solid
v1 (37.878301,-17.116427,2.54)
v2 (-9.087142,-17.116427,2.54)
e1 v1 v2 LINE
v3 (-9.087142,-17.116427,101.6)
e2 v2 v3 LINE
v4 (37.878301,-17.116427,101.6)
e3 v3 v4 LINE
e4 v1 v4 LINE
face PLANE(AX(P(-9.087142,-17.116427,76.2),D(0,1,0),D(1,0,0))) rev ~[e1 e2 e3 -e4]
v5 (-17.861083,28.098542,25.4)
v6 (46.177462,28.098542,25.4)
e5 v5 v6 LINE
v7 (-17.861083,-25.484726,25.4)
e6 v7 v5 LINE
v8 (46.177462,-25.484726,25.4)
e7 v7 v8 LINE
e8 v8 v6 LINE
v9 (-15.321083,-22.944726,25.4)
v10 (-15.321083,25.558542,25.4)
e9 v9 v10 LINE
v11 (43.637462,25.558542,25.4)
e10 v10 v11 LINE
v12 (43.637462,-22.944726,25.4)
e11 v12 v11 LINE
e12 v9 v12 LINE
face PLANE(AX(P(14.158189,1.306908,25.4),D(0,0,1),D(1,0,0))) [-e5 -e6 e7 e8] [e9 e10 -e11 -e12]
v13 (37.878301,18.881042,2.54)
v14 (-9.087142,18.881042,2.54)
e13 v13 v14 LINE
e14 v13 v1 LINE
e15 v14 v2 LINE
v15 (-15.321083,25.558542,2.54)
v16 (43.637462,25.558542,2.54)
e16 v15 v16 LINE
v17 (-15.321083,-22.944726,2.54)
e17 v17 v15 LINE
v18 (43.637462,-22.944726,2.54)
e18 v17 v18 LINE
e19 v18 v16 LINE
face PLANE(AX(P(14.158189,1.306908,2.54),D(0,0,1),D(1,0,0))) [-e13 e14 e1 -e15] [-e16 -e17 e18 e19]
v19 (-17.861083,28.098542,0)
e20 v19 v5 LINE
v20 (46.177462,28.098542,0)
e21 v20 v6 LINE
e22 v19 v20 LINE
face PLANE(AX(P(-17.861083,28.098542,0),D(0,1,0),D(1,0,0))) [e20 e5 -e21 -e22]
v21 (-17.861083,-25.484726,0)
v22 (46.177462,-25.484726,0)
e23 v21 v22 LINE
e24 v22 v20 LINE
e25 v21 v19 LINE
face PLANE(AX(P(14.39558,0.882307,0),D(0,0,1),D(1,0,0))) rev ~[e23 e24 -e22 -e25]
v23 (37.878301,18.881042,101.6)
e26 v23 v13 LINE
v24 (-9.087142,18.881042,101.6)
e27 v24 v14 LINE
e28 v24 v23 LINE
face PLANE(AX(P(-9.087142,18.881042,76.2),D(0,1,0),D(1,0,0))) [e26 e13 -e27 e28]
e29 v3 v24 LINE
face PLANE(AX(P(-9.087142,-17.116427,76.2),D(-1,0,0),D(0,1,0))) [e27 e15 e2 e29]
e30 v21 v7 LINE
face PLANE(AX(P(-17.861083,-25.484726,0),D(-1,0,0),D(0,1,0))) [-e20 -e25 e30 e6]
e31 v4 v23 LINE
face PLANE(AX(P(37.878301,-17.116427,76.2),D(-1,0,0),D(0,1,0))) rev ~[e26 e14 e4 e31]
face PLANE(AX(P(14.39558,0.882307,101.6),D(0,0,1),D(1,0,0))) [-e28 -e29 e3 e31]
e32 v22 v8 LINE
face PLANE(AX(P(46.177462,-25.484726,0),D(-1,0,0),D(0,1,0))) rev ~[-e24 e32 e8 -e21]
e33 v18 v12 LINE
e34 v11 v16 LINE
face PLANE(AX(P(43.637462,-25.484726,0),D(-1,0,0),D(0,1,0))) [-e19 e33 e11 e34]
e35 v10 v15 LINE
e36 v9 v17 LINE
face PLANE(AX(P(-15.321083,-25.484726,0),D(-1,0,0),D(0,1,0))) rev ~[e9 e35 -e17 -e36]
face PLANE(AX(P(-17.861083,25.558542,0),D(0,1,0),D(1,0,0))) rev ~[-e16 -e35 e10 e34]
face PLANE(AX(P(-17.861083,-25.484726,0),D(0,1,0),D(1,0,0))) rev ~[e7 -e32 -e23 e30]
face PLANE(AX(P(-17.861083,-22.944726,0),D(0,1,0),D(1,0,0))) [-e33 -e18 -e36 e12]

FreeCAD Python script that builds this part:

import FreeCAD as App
import Part
import Sketcher
Q = App.Units.Quantity


def faces_at(feature, points):
    """Names of the faces that lie closest to the given points."""
    faces = feature.Shape.Faces
    near = lambda p: min(range(len(faces)), key=lambda i: faces[i].distToShape(Part.Vertex(*p))[0])
    return sorted({f"Face{near(p) + 1}" for p in points})


def add_polygon(sketch, points):
    """Adds a closed chain of lines whose ends are joined by coincident constraints."""
    first, n = sketch.GeometryCount, len(points)
    for a, b in zip(points, points[1:] + points[:1]):
        sketch.addGeometry(Part.LineSegment(App.Vector(*a, 0), App.Vector(*b, 0)), False)
    for i in range(n):
        sketch.addConstraint(Sketcher.Constraint("Coincident", first + i, 2, first + (i + 1) % n, 1))

doc = App.newDocument("Part")
body = doc.addObject("PartDesign::Body", "Body")

# Sketch on XY plane
sketch1 = body.newObject("Sketcher::SketchObject", "Sketch")
sketch1.AttachmentSupport = (doc.getObject("XY_Plane"), [""])
sketch1.MapMode = "FlatFace"
add_polygon(sketch1, [(-17.861083, 28.098542), (-17.861083, -25.484726), (46.177462, -25.484726), (46.177462, 28.098542)])  # lines 0-3
sketch1.addConstraint(Sketcher.Constraint("Vertical", 0))
sketch1.addConstraint(Sketcher.Constraint("Horizontal", 1))
sketch1.addConstraint(Sketcher.Constraint("Vertical", 2))
sketch1.addConstraint(Sketcher.Constraint("Horizontal", 3))
sketch1.addConstraint(Sketcher.Constraint("DistanceY", 0, 2, 0, 1, 53.583268))
sketch1.addConstraint(Sketcher.Constraint("DistanceX", 1, 1, 1, 2, 64.038545))
sketch1.addConstraint(Sketcher.Constraint("DistanceX", -1, 1, 1, 2, 46.177462))
sketch1.addConstraint(Sketcher.Constraint("DistanceY", 0, 2, -1, 1, 25.484726))
pad1 = body.newObject("PartDesign::Pad", "Pad")
pad1.Profile = sketch1
pad1.Length = Q("1 in")
doc.recompute()

thickness = body.newObject("PartDesign::Thickness", "Thickness")
thickness.Base = (pad1, faces_at(pad1, [(14.158, 1.307, 25.4)]))
thickness.Value = Q("0.1 in")
thickness.Reversed = True
thickness.Join = "Arc"

# Sketch on XY plane
sketch2 = body.newObject("Sketcher::SketchObject", "Sketch001")
sketch2.AttachmentSupport = (doc.getObject("XY_Plane"), [""])
sketch2.MapMode = "FlatFace"
add_polygon(sketch2, [(-9.087142, 18.881042), (-9.087142, -17.116427), (37.878301, -17.116427), (37.878301, 18.881042)])  # lines 0-3
sketch2.addConstraint(Sketcher.Constraint("Vertical", 0))
sketch2.addConstraint(Sketcher.Constraint("Horizontal", 1))
sketch2.addConstraint(Sketcher.Constraint("Vertical", 2))
sketch2.addConstraint(Sketcher.Constraint("Horizontal", 3))
sketch2.addConstraint(Sketcher.Constraint("DistanceY", 0, 2, 0, 1, 35.997469))
sketch2.addConstraint(Sketcher.Constraint("DistanceX", -1, 1, 1, 2, 37.878301))
sketch2.addConstraint(Sketcher.Constraint("DistanceX", 1, 1, 1, 2, 46.965443))
sketch2.addConstraint(Sketcher.Constraint("DistanceY", -1, 1, 2, 2, 18.881042))
pad2 = body.newObject("PartDesign::Pad", "Pad001")
pad2.Profile = sketch2
pad2.Length = Q("3 in")

# Sketch on XY plane
sketch3 = body.newObject("Sketcher::SketchObject", "Sketch002")
sketch3.AttachmentSupport = (doc.getObject("XY_Plane"), [""])
sketch3.MapMode = "FlatFace"
sketch3.AttachmentOffset = App.Placement(App.Vector(0, 0, 3 * 25.4), App.Rotation())
add_polygon(sketch3, [(-9.087142, 18.881042), (-9.087142, -17.116427), (37.878301, -17.116427), (37.878301, 18.881042)])  # lines 0-3
sketch3.addConstraint(Sketcher.Constraint("Vertical", 0))
sketch3.addConstraint(Sketcher.Constraint("Horizontal", 1))
sketch3.addConstraint(Sketcher.Constraint("Vertical", 2))
sketch3.addConstraint(Sketcher.Constraint("Horizontal", 3))
sketch3.addConstraint(Sketcher.Constraint("DistanceY", 0, 2, 0, 1, 35.997469))
sketch3.addConstraint(Sketcher.Constraint("DistanceX", -1, 1, 1, 2, 37.878301))
sketch3.addConstraint(Sketcher.Constraint("DistanceX", 1, 1, 1, 2, 46.965443))
sketch3.addConstraint(Sketcher.Constraint("DistanceY", -1, 1, 2, 2, 18.881042))
pad3 = body.newObject("PartDesign::Pad", "Pad002")
pad3.Profile = sketch3
pad3.Length = Q("1 in")

doc.recompute()
